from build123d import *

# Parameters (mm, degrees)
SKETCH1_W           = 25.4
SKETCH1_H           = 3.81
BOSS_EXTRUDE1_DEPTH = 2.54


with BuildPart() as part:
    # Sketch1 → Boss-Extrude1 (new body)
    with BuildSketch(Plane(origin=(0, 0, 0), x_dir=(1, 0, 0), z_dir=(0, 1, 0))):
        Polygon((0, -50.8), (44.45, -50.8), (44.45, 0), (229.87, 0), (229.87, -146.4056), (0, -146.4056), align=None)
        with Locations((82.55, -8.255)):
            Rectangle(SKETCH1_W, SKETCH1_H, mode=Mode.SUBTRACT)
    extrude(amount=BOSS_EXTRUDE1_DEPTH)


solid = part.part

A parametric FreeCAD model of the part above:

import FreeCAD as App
import Part
import Sketcher
from FreeCAD import Vector
Q = App.Units.Quantity

doc = App.newDocument("Part")
body = doc.addObject("PartDesign::Body", "Body")

# Sketch on XZ plane
sketch1 = body.newObject("Sketcher::SketchObject", "Sketch")
sketch1.AttachmentSupport = (doc.getObject("XZ_Plane"), [""])
sketch1.MapMode = "FlatFace"
sketch1.addGeometry([
    Part.LineSegment(Vector(44.5, 50.8, 0), Vector(0, 50.8, 0)),  # 0
    Part.LineSegment(Vector(0, 50.8, 0), Vector(0, 146.4, 0)),  # 1
    Part.LineSegment(Vector(0, 146.4, 0), Vector(229.9, 146.4, 0)),  # 2
    Part.LineSegment(Vector(229.9, 146.4, 0), Vector(229.9, 0, 0)),  # 3
    Part.LineSegment(Vector(229.9, 0, 0), Vector(44.5, 0, 0)),  # 4
    Part.LineSegment(Vector(44.5, 0, 0), Vector(44.5, 50.8, 0)),  # 5
    Part.LineSegment(Vector(69.8, 10.2, 0), Vector(69.8, 6.3, 0)),  # 6
    Part.LineSegment(Vector(69.8, 6.3, 0), Vector(95.2, 6.3, 0)),  # 7
    Part.LineSegment(Vector(95.2, 6.3, 0), Vector(95.2, 10.2, 0)),  # 8
    Part.LineSegment(Vector(95.2, 10.2, 0), Vector(69.8, 10.2, 0)),  # 9
], False)
sketch1.addConstraint([
    Sketcher.Constraint("Coincident", 0, 2, 1, 1),
    Sketcher.Constraint("Coincident", 1, 2, 2, 1),
    Sketcher.Constraint("Coincident", 2, 2, 3, 1),
    Sketcher.Constraint("Coincident", 3, 2, 4, 1),
    Sketcher.Constraint("Coincident", 4, 2, 5, 1),
    Sketcher.Constraint("Coincident", 5, 2, 0, 1),
    Sketcher.Constraint("Coincident", 6, 2, 7, 1),
    Sketcher.Constraint("Coincident", 7, 2, 8, 1),
    Sketcher.Constraint("Coincident", 8, 2, 9, 1),
    Sketcher.Constraint("Coincident", 9, 2, 6, 1),
    Sketcher.Constraint("Horizontal", 0),
    Sketcher.Constraint("Vertical", 1),
    Sketcher.Constraint("Horizontal", 2),
    Sketcher.Constraint("Vertical", 3),
    Sketcher.Constraint("Horizontal", 4),
    Sketcher.Constraint("Vertical", 5),
    Sketcher.Constraint("Vertical", 6),
    Sketcher.Constraint("Horizontal", 7),
    Sketcher.Constraint("Vertical", 8),
    Sketcher.Constraint("Horizontal", 9),
    Sketcher.Constraint("PointOnObject", 0, 2, -2),
    Sketcher.Constraint("PointOnObject", 3, 2, -1),
    Sketcher.Constraint("DistanceX", 7, 1, 7, 2, Q("1 in")),
    Sketcher.Constraint("DistanceY", 5, 1, 5, 2, Q("2 in")),
    Sketcher.Constraint("DistanceX", 4, 2, 4, 1, Q("7.3 in")),
    Sketcher.Constraint("DistanceX", 4, 2, 6, 2, Q("1 in")),
    Sketcher.Constraint("DistanceX", 0, 2, 0, 1, Q("1.75 in")),
    Sketcher.Constraint("DistanceY", 6, 2, 6, 1, Q("0.15 in")),
    Sketcher.Constraint("DistanceY", -1, 1, 8, 2, Q("0.4 in")),
    Sketcher.Constraint("DistanceY", 1, 1, 1, 2, Q("3.764 in")),
])
pad1 = body.newObject("PartDesign::Pad", "Pad")
pad1.Profile = sketch1
pad1.Length = Q("0.1 in")
pad1.Reversed = True

doc.recompute()
